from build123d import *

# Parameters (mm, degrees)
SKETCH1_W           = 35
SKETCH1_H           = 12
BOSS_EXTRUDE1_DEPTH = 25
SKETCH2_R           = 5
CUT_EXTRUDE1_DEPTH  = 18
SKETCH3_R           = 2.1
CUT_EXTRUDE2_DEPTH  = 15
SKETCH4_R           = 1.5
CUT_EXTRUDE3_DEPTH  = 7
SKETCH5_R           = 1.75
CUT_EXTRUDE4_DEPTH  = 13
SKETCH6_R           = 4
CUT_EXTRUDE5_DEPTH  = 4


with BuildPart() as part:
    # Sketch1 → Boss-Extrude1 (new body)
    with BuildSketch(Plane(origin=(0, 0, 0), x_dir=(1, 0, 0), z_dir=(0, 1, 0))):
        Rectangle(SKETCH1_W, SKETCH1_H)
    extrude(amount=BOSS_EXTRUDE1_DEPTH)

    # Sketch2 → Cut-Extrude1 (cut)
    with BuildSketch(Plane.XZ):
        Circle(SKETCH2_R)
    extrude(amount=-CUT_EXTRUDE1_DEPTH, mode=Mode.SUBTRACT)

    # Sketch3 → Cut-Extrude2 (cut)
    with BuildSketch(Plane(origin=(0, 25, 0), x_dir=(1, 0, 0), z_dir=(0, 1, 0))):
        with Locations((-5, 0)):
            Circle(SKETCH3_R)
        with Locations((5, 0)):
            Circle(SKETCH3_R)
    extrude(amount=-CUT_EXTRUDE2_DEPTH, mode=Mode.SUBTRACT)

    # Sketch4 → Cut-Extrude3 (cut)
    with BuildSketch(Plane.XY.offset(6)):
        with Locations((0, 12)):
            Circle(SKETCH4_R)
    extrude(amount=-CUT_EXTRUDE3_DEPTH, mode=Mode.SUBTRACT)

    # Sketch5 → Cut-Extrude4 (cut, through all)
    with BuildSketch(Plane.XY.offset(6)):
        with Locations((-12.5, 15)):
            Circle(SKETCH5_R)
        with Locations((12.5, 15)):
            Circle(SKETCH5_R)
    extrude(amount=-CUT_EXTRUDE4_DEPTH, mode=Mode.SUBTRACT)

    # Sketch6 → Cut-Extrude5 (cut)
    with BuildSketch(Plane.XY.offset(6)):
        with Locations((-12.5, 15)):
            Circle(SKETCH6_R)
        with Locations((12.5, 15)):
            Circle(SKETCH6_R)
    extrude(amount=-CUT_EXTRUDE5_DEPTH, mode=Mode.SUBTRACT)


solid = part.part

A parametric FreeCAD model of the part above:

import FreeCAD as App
import Part
import Sketcher


def add_polygon(sketch, points):
    """Adds a closed chain of lines whose ends are joined by coincident constraints."""
    first, n = sketch.GeometryCount, len(points)
    for a, b in zip(points, points[1:] + points[:1]):
        sketch.addGeometry(Part.LineSegment(App.Vector(*a, 0), App.Vector(*b, 0)), False)
    for i in range(n):
        sketch.addConstraint(Sketcher.Constraint("Coincident", first + i, 2, first + (i + 1) % n, 1))

doc = App.newDocument("Part")
body = doc.addObject("PartDesign::Body", "Body")

sketch1 = body.newObject("Sketcher::SketchObject", "Sketch")
sketch1.AttachmentSupport = (doc.getObject("XZ_Plane"), [""])
sketch1.MapMode = "FlatFace"
add_polygon(sketch1, [(-18, -6), (-18, 6), (18, 6), (18, -6)])
sketch1.addConstraint([
    Sketcher.Constraint("Vertical", 0),
    Sketcher.Constraint("Horizontal", 1),
    Sketcher.Constraint("Vertical", 2),
    Sketcher.Constraint("Horizontal", 3),
    Sketcher.Constraint("Symmetric", 0, 2, 2, 2, -1, 1),
    Sketcher.Constraint("DistanceX", 1, 1, 1, 2, 35.0),
    Sketcher.Constraint("DistanceY", 0, 1, 0, 2, 12.0),
])
pad1 = body.newObject("PartDesign::Pad", "Pad")
pad1.Profile = sketch1
pad1.Length = 25
pad1.Reversed = True

sketch2 = body.newObject("Sketcher::SketchObject", "Sketch001")
sketch2.AttachmentSupport = (doc.getObject("XZ_Plane"), [""])
sketch2.MapMode = "FlatFace"
sketch2.addGeometry(Part.Circle(App.Vector(0, 0, 0), App.Vector(0, 0, 1), 5), False)
sketch2.addConstraint([
    Sketcher.Constraint("Coincident", 0, 3, -1, 1),
    Sketcher.Constraint("Diameter", 0, 10.0),
])
pocket1 = body.newObject("PartDesign::Pocket", "Pocket")
pocket1.Profile = sketch2
pocket1.Length = 18

sketch3 = body.newObject("Sketcher::SketchObject", "Sketch002")
sketch3.AttachmentSupport = (doc.getObject("XZ_Plane"), [""])
sketch3.MapMode = "FlatFace"
sketch3.AttachmentOffset = App.Placement(App.Vector(0, 0, -25), App.Rotation())
sketch3.addGeometry([
    Part.Circle(App.Vector(-5, 0, 0), App.Vector(0, 0, 1), 2.1),
    Part.Circle(App.Vector(5, 0, 0), App.Vector(0, 0, 1), 2.1),
], False)
sketch3.addConstraint([
    Sketcher.Constraint("Equal", 0, 1),
    Sketcher.Constraint("Symmetric", 0, 3, 1, 3, -1, 1),
    Sketcher.Constraint("PointOnObject", 0, 3, -1),
    Sketcher.Constraint("Diameter", 0, 4.2),
    Sketcher.Constraint("DistanceX", 0, 3, -1, 1, 5.0),
])
pocket2 = body.newObject("PartDesign::Pocket", "Pocket001")
pocket2.Profile = sketch3
pocket2.Length = 15
pocket2.Reversed = True

sketch4 = body.newObject("Sketcher::SketchObject", "Sketch003")
sketch4.AttachmentSupport = (doc.getObject("XY_Plane"), [""])
sketch4.MapMode = "FlatFace"
sketch4.AttachmentOffset = App.Placement(App.Vector(0, 0, 6), App.Rotation())
sketch4.addGeometry(Part.Circle(App.Vector(0, 12, 0), App.Vector(0, 0, 1), 1.5), False)
sketch4.addConstraint([
    Sketcher.Constraint("PointOnObject", 0, 3, -2),
    Sketcher.Constraint("Diameter", 0, 3.0),
    Sketcher.Constraint("DistanceY", -1, 1, 0, 3, 12.0),
])
pocket3 = body.newObject("PartDesign::Pocket", "Pocket002")
pocket3.Profile = sketch4
pocket3.Length = 7

sketch5 = body.newObject("Sketcher::SketchObject", "Sketch004")
sketch5.AttachmentSupport = (doc.getObject("XY_Plane"), [""])
sketch5.MapMode = "FlatFace"
sketch5.AttachmentOffset = App.Placement(App.Vector(0, 0, 6), App.Rotation())
sketch5.addGeometry([
    Part.Circle(App.Vector(-12.5, 15, 0), App.Vector(0, 0, 1), 1.8),
    Part.Circle(App.Vector(12.5, 15, 0), App.Vector(0, 0, 1), 1.8),
], False)
sketch5.addConstraint([
    Sketcher.Constraint("Equal", 0, 1),
    Sketcher.Constraint("Symmetric", 0, 3, 1, 3, -2),
    Sketcher.Constraint("Diameter", 0, 3.5),
    Sketcher.Constraint("DistanceY", -1, 1, 0, 3, 15.0),
    Sketcher.Constraint("DistanceX", 0, 3, 1, 3, 25.0),
])
pocket4 = body.newObject("PartDesign::Pocket", "Pocket003")
pocket4.Profile = sketch5
pocket4.Type = "ThroughAll"

sketch6 = body.newObject("Sketcher::SketchObject", "Sketch005")
sketch6.AttachmentSupport = (doc.getObject("XY_Plane"), [""])
sketch6.MapMode = "FlatFace"
sketch6.AttachmentOffset = App.Placement(App.Vector(0, 0, 6), App.Rotation())
sketch6.addGeometry([
    Part.Circle(App.Vector(-12.5, 15, 0), App.Vector(0, 0, 1), 4),
    Part.Circle(App.Vector(12.5, 15, 0), App.Vector(0, 0, 1), 4),
], False)
sketch6.addConstraint([
    Sketcher.Constraint("Equal", 0, 1),
    Sketcher.Constraint("Symmetric", 0, 3, 1, 3, -2),
    Sketcher.Constraint("Diameter", 0, 8.0),
    Sketcher.Constraint("DistanceY", -1, 1, 0, 3, 15.0),
    Sketcher.Constraint("DistanceX", 0, 3, 1, 3, 25.0),
])
pocket5 = body.newObject("PartDesign::Pocket", "Pocket004")
pocket5.Profile = sketch6
pocket5.Length = 4

doc.recompute()
